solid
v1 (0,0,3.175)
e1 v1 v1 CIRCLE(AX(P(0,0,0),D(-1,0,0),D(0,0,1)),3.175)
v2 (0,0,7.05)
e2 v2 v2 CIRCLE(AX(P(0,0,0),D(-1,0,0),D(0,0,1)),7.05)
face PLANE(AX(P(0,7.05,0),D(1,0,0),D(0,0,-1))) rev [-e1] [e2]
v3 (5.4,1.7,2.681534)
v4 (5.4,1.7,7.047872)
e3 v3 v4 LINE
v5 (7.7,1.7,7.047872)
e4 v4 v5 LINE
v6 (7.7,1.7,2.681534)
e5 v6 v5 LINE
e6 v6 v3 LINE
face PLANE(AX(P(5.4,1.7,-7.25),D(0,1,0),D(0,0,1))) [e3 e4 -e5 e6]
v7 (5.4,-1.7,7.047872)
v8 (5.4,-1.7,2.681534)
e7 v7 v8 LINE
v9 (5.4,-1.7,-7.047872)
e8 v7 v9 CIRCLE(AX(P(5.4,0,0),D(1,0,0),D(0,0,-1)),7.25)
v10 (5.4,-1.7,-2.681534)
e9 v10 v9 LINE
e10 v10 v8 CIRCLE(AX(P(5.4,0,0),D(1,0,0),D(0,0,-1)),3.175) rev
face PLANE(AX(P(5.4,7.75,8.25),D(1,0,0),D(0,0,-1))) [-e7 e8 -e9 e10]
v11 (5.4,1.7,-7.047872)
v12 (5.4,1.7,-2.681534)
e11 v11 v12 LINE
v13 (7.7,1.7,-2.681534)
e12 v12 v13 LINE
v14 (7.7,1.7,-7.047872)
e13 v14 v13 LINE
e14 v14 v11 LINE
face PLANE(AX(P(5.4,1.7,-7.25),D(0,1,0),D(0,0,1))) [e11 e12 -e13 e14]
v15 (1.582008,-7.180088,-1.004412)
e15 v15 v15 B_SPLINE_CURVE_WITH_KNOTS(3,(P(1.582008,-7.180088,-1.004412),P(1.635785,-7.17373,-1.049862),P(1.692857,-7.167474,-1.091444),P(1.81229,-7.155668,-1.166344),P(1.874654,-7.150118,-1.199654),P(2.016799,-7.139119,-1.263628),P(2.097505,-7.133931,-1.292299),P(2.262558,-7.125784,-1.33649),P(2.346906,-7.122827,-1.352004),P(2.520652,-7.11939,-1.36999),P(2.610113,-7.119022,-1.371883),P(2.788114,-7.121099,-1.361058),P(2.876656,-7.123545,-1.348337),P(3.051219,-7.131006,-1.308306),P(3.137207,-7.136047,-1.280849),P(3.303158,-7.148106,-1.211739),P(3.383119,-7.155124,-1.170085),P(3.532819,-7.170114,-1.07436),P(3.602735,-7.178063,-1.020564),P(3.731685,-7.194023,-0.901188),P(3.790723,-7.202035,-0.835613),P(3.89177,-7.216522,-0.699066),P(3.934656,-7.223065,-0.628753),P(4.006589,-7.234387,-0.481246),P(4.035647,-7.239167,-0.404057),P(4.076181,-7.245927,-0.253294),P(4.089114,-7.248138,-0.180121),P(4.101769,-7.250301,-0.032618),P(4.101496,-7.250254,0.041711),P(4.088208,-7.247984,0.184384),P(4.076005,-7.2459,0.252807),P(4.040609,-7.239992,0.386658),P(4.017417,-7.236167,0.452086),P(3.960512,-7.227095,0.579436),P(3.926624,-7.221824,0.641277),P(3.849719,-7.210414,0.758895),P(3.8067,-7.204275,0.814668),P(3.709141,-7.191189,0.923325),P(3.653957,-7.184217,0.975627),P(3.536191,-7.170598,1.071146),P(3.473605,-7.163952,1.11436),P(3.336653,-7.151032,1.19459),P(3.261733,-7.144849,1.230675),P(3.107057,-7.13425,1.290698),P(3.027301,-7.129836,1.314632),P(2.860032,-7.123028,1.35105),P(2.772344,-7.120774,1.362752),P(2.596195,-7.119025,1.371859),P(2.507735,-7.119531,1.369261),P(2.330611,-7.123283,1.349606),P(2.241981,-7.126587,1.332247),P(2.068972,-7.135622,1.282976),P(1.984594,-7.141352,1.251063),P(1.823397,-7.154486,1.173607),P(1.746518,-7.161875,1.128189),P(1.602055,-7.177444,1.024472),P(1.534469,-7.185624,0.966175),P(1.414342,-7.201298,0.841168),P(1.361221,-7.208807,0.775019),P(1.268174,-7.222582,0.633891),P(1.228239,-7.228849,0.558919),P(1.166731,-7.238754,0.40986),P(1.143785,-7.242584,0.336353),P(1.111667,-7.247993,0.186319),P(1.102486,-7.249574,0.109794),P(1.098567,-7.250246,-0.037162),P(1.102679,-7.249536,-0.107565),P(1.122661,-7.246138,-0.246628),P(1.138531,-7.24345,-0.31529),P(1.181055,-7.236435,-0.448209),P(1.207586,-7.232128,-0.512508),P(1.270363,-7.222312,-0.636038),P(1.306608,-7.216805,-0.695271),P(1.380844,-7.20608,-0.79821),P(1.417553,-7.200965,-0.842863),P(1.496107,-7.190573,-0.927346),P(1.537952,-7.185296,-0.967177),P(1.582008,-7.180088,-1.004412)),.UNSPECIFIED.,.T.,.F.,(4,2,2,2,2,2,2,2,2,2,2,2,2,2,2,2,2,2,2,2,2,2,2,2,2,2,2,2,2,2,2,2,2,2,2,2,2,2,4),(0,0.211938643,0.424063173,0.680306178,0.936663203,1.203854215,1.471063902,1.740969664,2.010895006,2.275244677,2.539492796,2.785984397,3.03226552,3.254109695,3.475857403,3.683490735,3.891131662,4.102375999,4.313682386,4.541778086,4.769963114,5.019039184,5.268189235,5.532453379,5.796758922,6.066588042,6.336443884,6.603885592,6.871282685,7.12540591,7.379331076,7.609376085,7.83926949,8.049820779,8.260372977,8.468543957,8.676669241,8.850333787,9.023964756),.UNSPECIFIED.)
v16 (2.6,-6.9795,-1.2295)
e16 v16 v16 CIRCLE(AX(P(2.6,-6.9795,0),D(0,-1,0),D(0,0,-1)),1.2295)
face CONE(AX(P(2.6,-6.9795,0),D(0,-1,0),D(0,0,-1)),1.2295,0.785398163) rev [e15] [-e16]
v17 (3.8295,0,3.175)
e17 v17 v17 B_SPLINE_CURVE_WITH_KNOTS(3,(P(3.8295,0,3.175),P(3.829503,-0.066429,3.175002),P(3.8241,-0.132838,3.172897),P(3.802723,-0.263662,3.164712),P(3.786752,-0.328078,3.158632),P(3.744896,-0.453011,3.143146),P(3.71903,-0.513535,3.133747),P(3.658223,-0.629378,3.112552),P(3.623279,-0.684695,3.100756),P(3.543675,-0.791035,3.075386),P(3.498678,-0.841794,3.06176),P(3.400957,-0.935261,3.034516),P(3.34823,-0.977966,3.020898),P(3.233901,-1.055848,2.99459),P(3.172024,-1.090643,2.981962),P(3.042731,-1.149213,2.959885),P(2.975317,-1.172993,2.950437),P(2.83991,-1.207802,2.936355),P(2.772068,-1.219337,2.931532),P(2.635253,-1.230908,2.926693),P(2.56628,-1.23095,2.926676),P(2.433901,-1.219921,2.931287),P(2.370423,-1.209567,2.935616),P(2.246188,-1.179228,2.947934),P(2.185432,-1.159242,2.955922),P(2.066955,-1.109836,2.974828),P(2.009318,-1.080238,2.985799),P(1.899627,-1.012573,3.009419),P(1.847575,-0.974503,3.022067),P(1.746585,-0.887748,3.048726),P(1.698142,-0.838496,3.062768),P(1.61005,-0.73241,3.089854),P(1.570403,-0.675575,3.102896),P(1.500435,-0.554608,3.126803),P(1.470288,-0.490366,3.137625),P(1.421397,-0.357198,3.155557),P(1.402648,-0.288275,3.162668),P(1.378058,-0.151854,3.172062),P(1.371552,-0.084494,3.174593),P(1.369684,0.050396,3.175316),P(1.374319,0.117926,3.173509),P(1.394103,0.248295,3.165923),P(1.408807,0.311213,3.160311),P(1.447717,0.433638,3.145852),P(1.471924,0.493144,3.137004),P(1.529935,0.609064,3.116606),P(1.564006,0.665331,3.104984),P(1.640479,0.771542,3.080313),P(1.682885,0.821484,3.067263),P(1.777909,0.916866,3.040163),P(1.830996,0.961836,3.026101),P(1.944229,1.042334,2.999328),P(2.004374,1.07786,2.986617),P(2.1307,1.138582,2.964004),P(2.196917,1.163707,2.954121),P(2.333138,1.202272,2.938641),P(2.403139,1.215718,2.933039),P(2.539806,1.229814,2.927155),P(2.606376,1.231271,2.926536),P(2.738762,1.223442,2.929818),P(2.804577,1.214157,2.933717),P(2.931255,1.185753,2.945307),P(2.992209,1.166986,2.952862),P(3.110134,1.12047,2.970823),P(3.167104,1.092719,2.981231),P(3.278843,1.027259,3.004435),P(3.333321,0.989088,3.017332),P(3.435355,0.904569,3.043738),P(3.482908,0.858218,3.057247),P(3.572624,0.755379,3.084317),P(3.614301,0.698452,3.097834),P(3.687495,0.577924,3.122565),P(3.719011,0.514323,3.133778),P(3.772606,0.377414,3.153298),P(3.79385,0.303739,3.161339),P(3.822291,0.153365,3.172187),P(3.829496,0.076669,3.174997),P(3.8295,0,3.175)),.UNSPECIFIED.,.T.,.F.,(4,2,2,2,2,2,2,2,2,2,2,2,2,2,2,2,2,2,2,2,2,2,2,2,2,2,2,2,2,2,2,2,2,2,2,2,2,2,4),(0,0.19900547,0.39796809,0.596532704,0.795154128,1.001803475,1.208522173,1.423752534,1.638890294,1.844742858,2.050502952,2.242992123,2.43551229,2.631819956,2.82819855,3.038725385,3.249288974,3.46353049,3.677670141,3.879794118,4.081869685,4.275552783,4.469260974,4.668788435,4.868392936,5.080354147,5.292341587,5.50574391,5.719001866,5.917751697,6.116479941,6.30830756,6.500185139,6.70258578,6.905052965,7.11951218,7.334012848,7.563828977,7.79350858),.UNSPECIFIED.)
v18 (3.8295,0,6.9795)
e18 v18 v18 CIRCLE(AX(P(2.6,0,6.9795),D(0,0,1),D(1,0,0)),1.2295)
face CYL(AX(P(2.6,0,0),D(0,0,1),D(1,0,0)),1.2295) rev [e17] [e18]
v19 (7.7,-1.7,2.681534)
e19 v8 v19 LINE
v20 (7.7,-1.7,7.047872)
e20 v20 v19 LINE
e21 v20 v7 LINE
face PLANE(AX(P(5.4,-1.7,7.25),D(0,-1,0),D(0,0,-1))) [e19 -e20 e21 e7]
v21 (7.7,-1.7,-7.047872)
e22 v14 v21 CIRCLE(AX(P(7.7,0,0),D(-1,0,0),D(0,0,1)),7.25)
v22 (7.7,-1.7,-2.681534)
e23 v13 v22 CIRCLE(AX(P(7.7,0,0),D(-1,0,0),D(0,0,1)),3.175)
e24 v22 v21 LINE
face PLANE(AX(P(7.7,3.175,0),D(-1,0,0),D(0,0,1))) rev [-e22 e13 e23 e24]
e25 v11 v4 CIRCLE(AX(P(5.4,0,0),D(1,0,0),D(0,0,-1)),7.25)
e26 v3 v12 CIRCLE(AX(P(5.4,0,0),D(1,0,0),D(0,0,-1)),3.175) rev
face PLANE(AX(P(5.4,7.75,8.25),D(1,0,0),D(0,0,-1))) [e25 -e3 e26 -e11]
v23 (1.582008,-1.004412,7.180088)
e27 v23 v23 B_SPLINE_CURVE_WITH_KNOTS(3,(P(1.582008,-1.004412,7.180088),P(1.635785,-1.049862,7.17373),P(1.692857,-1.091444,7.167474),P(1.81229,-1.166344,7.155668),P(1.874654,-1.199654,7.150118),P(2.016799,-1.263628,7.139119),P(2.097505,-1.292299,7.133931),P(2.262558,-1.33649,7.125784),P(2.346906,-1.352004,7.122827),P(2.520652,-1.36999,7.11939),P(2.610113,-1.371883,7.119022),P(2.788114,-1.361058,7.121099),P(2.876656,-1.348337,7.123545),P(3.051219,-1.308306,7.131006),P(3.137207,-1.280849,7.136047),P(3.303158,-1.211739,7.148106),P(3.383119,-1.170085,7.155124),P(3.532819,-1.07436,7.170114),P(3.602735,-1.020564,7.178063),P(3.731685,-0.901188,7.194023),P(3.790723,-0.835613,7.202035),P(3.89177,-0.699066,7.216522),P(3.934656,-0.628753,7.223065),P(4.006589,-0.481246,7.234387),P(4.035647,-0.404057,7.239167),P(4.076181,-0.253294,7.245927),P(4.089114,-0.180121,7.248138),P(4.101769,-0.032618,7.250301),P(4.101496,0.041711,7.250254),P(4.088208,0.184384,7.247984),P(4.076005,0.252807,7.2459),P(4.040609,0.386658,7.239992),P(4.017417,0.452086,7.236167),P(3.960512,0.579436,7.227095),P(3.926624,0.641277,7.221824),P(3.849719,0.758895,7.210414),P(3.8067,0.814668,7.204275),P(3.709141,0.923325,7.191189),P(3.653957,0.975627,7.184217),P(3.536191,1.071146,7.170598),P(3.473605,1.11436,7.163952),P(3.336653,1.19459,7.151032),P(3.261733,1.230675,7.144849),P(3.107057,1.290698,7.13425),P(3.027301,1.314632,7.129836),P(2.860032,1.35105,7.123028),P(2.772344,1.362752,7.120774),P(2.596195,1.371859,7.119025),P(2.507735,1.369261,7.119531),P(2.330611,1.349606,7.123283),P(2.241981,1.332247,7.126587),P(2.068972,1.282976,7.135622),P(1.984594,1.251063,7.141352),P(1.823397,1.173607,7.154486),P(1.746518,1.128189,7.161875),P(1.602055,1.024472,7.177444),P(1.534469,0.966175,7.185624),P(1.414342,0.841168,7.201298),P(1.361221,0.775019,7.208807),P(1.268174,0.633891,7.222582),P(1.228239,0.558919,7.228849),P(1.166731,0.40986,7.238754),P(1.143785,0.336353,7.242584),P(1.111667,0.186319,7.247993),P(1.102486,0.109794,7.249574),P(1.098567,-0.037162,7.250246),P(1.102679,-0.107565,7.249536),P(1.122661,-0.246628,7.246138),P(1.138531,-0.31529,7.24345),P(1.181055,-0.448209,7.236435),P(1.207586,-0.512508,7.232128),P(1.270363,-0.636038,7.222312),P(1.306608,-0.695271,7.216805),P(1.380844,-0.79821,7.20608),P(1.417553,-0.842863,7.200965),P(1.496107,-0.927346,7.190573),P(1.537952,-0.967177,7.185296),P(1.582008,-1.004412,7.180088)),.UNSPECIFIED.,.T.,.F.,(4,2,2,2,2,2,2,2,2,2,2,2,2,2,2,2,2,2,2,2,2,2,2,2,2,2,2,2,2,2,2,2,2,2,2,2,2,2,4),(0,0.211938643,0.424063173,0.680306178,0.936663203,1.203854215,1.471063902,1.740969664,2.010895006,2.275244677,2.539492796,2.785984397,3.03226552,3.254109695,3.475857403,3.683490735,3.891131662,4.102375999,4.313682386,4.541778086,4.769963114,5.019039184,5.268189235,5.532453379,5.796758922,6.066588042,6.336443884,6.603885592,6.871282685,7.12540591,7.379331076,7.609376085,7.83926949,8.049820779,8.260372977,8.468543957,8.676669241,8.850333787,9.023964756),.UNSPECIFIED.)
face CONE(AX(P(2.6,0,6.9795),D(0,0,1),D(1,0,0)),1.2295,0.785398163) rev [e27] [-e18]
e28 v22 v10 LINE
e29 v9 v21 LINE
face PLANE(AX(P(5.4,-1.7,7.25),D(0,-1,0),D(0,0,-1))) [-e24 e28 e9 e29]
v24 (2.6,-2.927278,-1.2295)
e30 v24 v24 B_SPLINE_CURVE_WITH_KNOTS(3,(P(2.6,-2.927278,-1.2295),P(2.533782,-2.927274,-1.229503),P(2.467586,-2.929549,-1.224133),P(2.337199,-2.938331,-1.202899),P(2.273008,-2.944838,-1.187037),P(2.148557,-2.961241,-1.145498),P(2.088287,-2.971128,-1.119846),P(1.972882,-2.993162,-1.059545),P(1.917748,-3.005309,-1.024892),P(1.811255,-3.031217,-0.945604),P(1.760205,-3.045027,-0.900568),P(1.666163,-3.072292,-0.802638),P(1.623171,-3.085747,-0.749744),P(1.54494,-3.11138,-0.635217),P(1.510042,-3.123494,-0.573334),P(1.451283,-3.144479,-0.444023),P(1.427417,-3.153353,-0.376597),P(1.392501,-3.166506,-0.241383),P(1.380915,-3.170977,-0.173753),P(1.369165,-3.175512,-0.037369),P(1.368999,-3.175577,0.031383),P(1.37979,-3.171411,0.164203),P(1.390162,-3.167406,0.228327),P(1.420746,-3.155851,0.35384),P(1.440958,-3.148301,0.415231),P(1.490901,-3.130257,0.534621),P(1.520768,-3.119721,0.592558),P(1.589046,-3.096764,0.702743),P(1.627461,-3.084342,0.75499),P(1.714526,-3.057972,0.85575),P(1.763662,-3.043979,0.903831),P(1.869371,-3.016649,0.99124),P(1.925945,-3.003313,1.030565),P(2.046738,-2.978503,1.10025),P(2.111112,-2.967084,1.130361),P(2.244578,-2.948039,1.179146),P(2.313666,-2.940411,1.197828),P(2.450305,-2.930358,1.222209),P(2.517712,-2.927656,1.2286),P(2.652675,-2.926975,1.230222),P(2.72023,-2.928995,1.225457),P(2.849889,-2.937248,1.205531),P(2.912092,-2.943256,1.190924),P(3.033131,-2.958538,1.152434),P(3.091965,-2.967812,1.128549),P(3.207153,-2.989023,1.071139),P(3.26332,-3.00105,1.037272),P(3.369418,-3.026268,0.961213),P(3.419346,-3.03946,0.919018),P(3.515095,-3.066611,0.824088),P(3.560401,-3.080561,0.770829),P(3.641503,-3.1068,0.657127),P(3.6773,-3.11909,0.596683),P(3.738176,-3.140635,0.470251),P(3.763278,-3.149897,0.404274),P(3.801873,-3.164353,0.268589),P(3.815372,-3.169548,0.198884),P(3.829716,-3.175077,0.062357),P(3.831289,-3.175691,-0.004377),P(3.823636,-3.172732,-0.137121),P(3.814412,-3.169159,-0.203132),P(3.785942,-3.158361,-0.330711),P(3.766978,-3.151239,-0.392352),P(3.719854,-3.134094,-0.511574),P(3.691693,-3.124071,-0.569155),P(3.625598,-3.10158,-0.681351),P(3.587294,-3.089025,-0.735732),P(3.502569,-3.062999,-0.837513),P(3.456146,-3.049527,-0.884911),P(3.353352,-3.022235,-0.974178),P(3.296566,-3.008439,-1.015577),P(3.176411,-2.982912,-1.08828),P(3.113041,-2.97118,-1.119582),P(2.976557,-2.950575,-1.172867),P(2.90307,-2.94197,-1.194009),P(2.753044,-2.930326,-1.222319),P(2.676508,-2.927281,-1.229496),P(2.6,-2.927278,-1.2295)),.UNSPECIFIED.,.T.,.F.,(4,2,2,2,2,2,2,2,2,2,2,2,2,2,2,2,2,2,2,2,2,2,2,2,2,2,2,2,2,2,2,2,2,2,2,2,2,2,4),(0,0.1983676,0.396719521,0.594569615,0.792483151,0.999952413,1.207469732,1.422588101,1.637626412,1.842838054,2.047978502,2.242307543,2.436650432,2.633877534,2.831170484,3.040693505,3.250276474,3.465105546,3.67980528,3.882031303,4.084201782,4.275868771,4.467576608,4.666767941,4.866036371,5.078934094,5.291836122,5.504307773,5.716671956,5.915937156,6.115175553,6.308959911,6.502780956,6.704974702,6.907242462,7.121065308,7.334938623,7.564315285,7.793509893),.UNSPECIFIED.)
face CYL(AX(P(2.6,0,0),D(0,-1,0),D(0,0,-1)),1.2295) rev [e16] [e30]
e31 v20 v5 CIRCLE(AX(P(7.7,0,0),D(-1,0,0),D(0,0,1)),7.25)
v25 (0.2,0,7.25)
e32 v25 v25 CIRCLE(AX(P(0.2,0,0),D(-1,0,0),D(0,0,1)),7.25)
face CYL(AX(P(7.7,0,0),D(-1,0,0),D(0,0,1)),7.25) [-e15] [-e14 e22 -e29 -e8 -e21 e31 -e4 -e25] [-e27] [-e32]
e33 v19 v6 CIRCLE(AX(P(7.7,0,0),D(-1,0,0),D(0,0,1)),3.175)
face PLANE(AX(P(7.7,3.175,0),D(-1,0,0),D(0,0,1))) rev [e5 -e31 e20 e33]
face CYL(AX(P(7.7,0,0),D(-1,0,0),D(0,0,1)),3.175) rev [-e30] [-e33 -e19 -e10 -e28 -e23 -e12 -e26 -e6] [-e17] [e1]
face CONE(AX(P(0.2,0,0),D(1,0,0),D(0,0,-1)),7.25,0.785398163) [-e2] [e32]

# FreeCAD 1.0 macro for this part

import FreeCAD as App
import Part
import Sketcher
from FreeCAD import Vector
Q = App.Units.Quantity


def add_polygon(sketch, points):
    """Adds a closed chain of lines whose ends are joined by coincident constraints."""
    first, n = sketch.GeometryCount, len(points)
    for a, b in zip(points, points[1:] + points[:1]):
        sketch.addGeometry(Part.LineSegment(App.Vector(*a, 0), App.Vector(*b, 0)), False)
    for i in range(n):
        sketch.addConstraint(Sketcher.Constraint("Coincident", first + i, 2, first + (i + 1) % n, 1))

doc = App.newDocument("Part")
body = doc.addObject("PartDesign::Body", "Body")

sketch1 = doc.addObject("Sketcher::SketchObject", "Sketch")
body.addObject(sketch1)
sketch1.AttachmentSupport = (doc.XY_Plane, [""])
sketch1.MapMode = "FlatFace"
add_polygon(sketch1, [(0, 7.05), (0, 3.17), (7.7, 3.17), (7.7, 7.25), (0.2, 7.25)])
sketch1.addConstraint(Sketcher.Constraint("Vertical", 0))
sketch1.addConstraint(Sketcher.Constraint("Horizontal", 1))
sketch1.addConstraint(Sketcher.Constraint("Vertical", 2))
sketch1.addConstraint(Sketcher.Constraint("Horizontal", 3))
sketch1.addConstraint(Sketcher.Constraint("PointOnObject", 0, 2, -2))
sketch1.addConstraint(Sketcher.Constraint("Angle", 4, Q("-135 deg")))
sketch1.addConstraint(Sketcher.Constraint("DistanceX", 1, 1, 1, 2, Q("7.7 mm")))
sketch1.addConstraint(Sketcher.Constraint("DistanceX", 3, 2, 3, 1, Q("7.5 mm")))
sketch1.addConstraint(Sketcher.Constraint("DistanceY", 0, 2, 0, 1, Q("3.875 mm")))
sketch1.addConstraint(Sketcher.Constraint("DistanceY", -1, 1, 2, 2, Q("7.25 mm")))
revolution = doc.addObject("PartDesign::Revolution", "Revolution")
body.addObject(revolution)
revolution.Profile = sketch1
revolution.ReferenceAxis = (sketch1, ["H_Axis"])
revolution.Angle = 360

sketch2 = doc.addObject("Sketcher::SketchObject", "Sketch001")
body.addObject(sketch2)
sketch2.AttachmentSupport = (doc.YZ_Plane, [""])
sketch2.MapMode = "FlatFace"
sketch2.AttachmentOffset = App.Placement(Vector(0, 0, 7.7), App.Rotation())
add_polygon(sketch2, [(7.8, 8.2), (-7.8, 8.2), (-7.8, -8.2), (7.8, -8.2)])
add_polygon(sketch2, [(-1.7, -7.2), (-1.7, 7.2), (1.7, 7.2), (1.7, -7.2)])
sketch2.addConstraint(Sketcher.Constraint("Horizontal", 0))
sketch2.addConstraint(Sketcher.Constraint("Vertical", 1))
sketch2.addConstraint(Sketcher.Constraint("Horizontal", 2))
sketch2.addConstraint(Sketcher.Constraint("Vertical", 3))
sketch2.addConstraint(Sketcher.Constraint("Vertical", 4))
sketch2.addConstraint(Sketcher.Constraint("Horizontal", 5))
sketch2.addConstraint(Sketcher.Constraint("Vertical", 6))
sketch2.addConstraint(Sketcher.Constraint("Horizontal", 7))
sketch2.addConstraint(Sketcher.Constraint("Symmetric", 0, 2, 2, 2, -1, 1))
sketch2.addConstraint(Sketcher.Constraint("Symmetric", 4, 2, 6, 2, -1, 1))
sketch2.addConstraint(Sketcher.Constraint("DistanceX", 0, 2, 0, 1, Q("15.5 mm")))
sketch2.addConstraint(Sketcher.Constraint("DistanceX", 5, 1, 5, 2, Q("3.4 mm")))
sketch2.addConstraint(Sketcher.Constraint("DistanceY", 1, 2, 1, 1, Q("16.5 mm")))
sketch2.addConstraint(Sketcher.Constraint("DistanceY", 4, 1, 4, 2, Q("14.5 mm")))
pocket1 = doc.addObject("PartDesign::Pocket", "Pocket")
body.addObject(pocket1)
pocket1.Profile = sketch2
pocket1.Length = 2.3

sketch3 = doc.addObject("Sketcher::SketchObject", "Sketch002")
body.addObject(sketch3)
sketch3.AttachmentSupport = (doc.YZ_Plane, [""])
sketch3.MapMode = "FlatFace"
sketch3.AttachmentOffset = App.Placement(Vector(0, 0, 2.6), App.Rotation())
add_polygon(sketch3, [(1.5, 7.25), (0, 7.25), (0, 0), (1.23, 0), (1.23, 6.98)])
sketch3.addConstraint(Sketcher.Constraint("Horizontal", 0))
sketch3.addConstraint(Sketcher.Constraint("Vertical", 1))
sketch3.addConstraint(Sketcher.Constraint("Horizontal", 2))
sketch3.addConstraint(Sketcher.Constraint("Vertical", 3))
sketch3.addConstraint(Sketcher.Constraint("Coincident", 1, 2, -1, 1))
sketch3.addConstraint(Sketcher.Constraint("Angle", 4, Q("45 deg")))
sketch3.addConstraint(Sketcher.Constraint("DistanceX", 0, 2, 0, 1, Q("1.5 mm")))
sketch3.addConstraint(Sketcher.Constraint("DistanceY", 1, 2, 1, 1, Q("7.25 mm")))
sketch3.addConstraint(Sketcher.Constraint("DistanceX", 2, 1, 2, 2, Q("1.2295 mm")))
groove = doc.addObject("PartDesign::Groove", "Groove")
body.addObject(groove)
groove.Profile = sketch3
groove.ReferenceAxis = (sketch3, ["V_Axis"])
groove.Angle = 360

sketch4 = doc.addObject("Sketcher::SketchObject", "Sketch003")
body.addObject(sketch4)
sketch4.AttachmentSupport = (doc.YZ_Plane, [""])
sketch4.MapMode = "FlatFace"
sketch4.AttachmentOffset = App.Placement(Vector(0, 0, 2.6), App.Rotation())
add_polygon(sketch4, [(-7.25, 1.5), (-7.25, 0), (0, 0), (0, 1.23), (-6.98, 1.23)])
sketch4.addConstraint(Sketcher.Constraint("Vertical", 0))
sketch4.addConstraint(Sketcher.Constraint("Horizontal", 1))
sketch4.addConstraint(Sketcher.Constraint("Vertical", 2))
sketch4.addConstraint(Sketcher.Constraint("Horizontal", 3))
sketch4.addConstraint(Sketcher.Constraint("Coincident", 1, 2, -1, 1))
sketch4.addConstraint(Sketcher.Constraint("Angle", 4, Q("135 deg")))
sketch4.addConstraint(Sketcher.Constraint("DistanceY", 0, 2, 0, 1, Q("1.5 mm")))
sketch4.addConstraint(Sketcher.Constraint("DistanceX", 1, 1, 1, 2, Q("7.25 mm")))
sketch4.addConstraint(Sketcher.Constraint("DistanceX", 3, 2, 3, 1, Q("6.9795 mm")))
groove2 = doc.addObject("PartDesign::Groove", "Groove001")
body.addObject(groove2)
groove2.Profile = sketch4
groove2.ReferenceAxis = (sketch4, ["H_Axis"])
groove2.Angle = 360

doc.recompute()
